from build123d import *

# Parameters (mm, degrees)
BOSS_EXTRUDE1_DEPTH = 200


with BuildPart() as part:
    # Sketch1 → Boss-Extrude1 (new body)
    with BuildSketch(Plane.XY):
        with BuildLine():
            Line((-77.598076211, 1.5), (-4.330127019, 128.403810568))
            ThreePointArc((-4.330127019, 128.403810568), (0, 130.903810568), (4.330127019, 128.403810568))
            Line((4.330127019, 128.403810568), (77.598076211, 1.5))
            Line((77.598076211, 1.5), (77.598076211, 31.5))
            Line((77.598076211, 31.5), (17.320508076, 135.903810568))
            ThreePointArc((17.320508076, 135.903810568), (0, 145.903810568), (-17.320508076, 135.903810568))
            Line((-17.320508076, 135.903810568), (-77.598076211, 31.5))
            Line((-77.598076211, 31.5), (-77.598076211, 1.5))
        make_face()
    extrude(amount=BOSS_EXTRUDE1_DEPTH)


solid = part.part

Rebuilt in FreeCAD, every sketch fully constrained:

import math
import FreeCAD as App
import Part
import Sketcher
Q = App.Units.Quantity

doc = App.newDocument("Part")
params = doc.addObject("Spreadsheet::Sheet", "Params")
for row, (alias, value) in enumerate([
    ("sketch1_radius", "5 mm"),
    ("sketch1_radius2", "20 mm"),
    ("sketch1_height", "30 mm"),
    ("pad1_length", "200 mm"),
], start=1):
    params.set(f"A{row}", alias)
    params.set(f"B{row}", "=" + value)
    params.setAlias(f"B{row}", alias)

body = doc.addObject("PartDesign::Body", "Body")

# Sketch on XY plane
sketch1 = doc.addObject("Sketcher::SketchObject", "Sketch")
body.addObject(sketch1)
sketch1.AttachmentSupport = (doc.XY_Plane, [""])
sketch1.MapMode = "FlatFace"
sketch1.addGeometry(Part.LineSegment(App.Vector(-78, 2, 0), App.Vector(-4, 128, 0)), False)
sketch1.addGeometry(Part.ArcOfCircle(Part.Circle(App.Vector(0, 126, 0), App.Vector(0, 0, 1), 5), math.radians(30), math.radians(150)), False)
sketch1.addGeometry(Part.LineSegment(App.Vector(4, 128, 0), App.Vector(78, 2, 0)), False)
sketch1.addGeometry(Part.LineSegment(App.Vector(78, 2, 0), App.Vector(78, 32, 0)), False)
sketch1.addGeometry(Part.LineSegment(App.Vector(78, 32, 0), App.Vector(17, 136, 0)), False)
sketch1.addGeometry(Part.ArcOfCircle(Part.Circle(App.Vector(0, 126, 0), App.Vector(0, 0, 1), 20), math.radians(30), math.radians(150)), False)
sketch1.addGeometry(Part.LineSegment(App.Vector(-17, 136, 0), App.Vector(-78, 32, 0)), False)
sketch1.addGeometry(Part.LineSegment(App.Vector(-78, 32, 0), App.Vector(-78, 2, 0)), False)
sketch1.addConstraint(Sketcher.Constraint("Tangent", 0, 2, 1, 2))
sketch1.addConstraint(Sketcher.Constraint("Tangent", 1, 1, 2, 1))
sketch1.addConstraint(Sketcher.Constraint("Coincident", 2, 2, 3, 1))
sketch1.addConstraint(Sketcher.Constraint("Coincident", 3, 2, 4, 1))
sketch1.addConstraint(Sketcher.Constraint("Tangent", 4, 2, 5, 1))
sketch1.addConstraint(Sketcher.Constraint("Tangent", 5, 2, 6, 1))
sketch1.addConstraint(Sketcher.Constraint("Coincident", 6, 2, 7, 1))
sketch1.addConstraint(Sketcher.Constraint("Coincident", 7, 2, 0, 1))
sketch1.addConstraint(Sketcher.Constraint("Vertical", 3))
sketch1.addConstraint(Sketcher.Constraint("Vertical", 7))
sketch1.addConstraint(Sketcher.Constraint("Coincident", 5, 3, 1, 3))
sketch1.addConstraint(Sketcher.Constraint("Symmetric", 0, 2, 1, 1, -2))
sketch1.addConstraint(Sketcher.Constraint("Symmetric", 3, 2, 6, 2, -2))
sketch1.addConstraint(Sketcher.Constraint("Parallel", 2, 4))
sketch1.addConstraint(Sketcher.Constraint("Radius", 1, Q("5 mm")))
sketch1.addConstraint(Sketcher.Constraint("Radius", 5, Q("20 mm")))
sketch1.addConstraint(Sketcher.Constraint("DistanceY", 3, 1, 3, 2, Q("30 mm")))
sketch1.addConstraint(Sketcher.Constraint("DistanceY", -1, 1, 2, 2, Q("1.5 mm")))
sketch1.addConstraint(Sketcher.Constraint("Distance", 0, Q("146.535898 mm")))
sketch1.setExpression("Constraints[14]", "Params.sketch1_radius")
sketch1.setExpression("Constraints[15]", "Params.sketch1_radius2")
sketch1.setExpression("Constraints[16]", "Params.sketch1_height")
pad1 = doc.addObject("PartDesign::Pad", "Pad")
body.addObject(pad1)
pad1.Profile = sketch1
pad1.setExpression("Length", "Params.pad1_length")

doc.recompute()
